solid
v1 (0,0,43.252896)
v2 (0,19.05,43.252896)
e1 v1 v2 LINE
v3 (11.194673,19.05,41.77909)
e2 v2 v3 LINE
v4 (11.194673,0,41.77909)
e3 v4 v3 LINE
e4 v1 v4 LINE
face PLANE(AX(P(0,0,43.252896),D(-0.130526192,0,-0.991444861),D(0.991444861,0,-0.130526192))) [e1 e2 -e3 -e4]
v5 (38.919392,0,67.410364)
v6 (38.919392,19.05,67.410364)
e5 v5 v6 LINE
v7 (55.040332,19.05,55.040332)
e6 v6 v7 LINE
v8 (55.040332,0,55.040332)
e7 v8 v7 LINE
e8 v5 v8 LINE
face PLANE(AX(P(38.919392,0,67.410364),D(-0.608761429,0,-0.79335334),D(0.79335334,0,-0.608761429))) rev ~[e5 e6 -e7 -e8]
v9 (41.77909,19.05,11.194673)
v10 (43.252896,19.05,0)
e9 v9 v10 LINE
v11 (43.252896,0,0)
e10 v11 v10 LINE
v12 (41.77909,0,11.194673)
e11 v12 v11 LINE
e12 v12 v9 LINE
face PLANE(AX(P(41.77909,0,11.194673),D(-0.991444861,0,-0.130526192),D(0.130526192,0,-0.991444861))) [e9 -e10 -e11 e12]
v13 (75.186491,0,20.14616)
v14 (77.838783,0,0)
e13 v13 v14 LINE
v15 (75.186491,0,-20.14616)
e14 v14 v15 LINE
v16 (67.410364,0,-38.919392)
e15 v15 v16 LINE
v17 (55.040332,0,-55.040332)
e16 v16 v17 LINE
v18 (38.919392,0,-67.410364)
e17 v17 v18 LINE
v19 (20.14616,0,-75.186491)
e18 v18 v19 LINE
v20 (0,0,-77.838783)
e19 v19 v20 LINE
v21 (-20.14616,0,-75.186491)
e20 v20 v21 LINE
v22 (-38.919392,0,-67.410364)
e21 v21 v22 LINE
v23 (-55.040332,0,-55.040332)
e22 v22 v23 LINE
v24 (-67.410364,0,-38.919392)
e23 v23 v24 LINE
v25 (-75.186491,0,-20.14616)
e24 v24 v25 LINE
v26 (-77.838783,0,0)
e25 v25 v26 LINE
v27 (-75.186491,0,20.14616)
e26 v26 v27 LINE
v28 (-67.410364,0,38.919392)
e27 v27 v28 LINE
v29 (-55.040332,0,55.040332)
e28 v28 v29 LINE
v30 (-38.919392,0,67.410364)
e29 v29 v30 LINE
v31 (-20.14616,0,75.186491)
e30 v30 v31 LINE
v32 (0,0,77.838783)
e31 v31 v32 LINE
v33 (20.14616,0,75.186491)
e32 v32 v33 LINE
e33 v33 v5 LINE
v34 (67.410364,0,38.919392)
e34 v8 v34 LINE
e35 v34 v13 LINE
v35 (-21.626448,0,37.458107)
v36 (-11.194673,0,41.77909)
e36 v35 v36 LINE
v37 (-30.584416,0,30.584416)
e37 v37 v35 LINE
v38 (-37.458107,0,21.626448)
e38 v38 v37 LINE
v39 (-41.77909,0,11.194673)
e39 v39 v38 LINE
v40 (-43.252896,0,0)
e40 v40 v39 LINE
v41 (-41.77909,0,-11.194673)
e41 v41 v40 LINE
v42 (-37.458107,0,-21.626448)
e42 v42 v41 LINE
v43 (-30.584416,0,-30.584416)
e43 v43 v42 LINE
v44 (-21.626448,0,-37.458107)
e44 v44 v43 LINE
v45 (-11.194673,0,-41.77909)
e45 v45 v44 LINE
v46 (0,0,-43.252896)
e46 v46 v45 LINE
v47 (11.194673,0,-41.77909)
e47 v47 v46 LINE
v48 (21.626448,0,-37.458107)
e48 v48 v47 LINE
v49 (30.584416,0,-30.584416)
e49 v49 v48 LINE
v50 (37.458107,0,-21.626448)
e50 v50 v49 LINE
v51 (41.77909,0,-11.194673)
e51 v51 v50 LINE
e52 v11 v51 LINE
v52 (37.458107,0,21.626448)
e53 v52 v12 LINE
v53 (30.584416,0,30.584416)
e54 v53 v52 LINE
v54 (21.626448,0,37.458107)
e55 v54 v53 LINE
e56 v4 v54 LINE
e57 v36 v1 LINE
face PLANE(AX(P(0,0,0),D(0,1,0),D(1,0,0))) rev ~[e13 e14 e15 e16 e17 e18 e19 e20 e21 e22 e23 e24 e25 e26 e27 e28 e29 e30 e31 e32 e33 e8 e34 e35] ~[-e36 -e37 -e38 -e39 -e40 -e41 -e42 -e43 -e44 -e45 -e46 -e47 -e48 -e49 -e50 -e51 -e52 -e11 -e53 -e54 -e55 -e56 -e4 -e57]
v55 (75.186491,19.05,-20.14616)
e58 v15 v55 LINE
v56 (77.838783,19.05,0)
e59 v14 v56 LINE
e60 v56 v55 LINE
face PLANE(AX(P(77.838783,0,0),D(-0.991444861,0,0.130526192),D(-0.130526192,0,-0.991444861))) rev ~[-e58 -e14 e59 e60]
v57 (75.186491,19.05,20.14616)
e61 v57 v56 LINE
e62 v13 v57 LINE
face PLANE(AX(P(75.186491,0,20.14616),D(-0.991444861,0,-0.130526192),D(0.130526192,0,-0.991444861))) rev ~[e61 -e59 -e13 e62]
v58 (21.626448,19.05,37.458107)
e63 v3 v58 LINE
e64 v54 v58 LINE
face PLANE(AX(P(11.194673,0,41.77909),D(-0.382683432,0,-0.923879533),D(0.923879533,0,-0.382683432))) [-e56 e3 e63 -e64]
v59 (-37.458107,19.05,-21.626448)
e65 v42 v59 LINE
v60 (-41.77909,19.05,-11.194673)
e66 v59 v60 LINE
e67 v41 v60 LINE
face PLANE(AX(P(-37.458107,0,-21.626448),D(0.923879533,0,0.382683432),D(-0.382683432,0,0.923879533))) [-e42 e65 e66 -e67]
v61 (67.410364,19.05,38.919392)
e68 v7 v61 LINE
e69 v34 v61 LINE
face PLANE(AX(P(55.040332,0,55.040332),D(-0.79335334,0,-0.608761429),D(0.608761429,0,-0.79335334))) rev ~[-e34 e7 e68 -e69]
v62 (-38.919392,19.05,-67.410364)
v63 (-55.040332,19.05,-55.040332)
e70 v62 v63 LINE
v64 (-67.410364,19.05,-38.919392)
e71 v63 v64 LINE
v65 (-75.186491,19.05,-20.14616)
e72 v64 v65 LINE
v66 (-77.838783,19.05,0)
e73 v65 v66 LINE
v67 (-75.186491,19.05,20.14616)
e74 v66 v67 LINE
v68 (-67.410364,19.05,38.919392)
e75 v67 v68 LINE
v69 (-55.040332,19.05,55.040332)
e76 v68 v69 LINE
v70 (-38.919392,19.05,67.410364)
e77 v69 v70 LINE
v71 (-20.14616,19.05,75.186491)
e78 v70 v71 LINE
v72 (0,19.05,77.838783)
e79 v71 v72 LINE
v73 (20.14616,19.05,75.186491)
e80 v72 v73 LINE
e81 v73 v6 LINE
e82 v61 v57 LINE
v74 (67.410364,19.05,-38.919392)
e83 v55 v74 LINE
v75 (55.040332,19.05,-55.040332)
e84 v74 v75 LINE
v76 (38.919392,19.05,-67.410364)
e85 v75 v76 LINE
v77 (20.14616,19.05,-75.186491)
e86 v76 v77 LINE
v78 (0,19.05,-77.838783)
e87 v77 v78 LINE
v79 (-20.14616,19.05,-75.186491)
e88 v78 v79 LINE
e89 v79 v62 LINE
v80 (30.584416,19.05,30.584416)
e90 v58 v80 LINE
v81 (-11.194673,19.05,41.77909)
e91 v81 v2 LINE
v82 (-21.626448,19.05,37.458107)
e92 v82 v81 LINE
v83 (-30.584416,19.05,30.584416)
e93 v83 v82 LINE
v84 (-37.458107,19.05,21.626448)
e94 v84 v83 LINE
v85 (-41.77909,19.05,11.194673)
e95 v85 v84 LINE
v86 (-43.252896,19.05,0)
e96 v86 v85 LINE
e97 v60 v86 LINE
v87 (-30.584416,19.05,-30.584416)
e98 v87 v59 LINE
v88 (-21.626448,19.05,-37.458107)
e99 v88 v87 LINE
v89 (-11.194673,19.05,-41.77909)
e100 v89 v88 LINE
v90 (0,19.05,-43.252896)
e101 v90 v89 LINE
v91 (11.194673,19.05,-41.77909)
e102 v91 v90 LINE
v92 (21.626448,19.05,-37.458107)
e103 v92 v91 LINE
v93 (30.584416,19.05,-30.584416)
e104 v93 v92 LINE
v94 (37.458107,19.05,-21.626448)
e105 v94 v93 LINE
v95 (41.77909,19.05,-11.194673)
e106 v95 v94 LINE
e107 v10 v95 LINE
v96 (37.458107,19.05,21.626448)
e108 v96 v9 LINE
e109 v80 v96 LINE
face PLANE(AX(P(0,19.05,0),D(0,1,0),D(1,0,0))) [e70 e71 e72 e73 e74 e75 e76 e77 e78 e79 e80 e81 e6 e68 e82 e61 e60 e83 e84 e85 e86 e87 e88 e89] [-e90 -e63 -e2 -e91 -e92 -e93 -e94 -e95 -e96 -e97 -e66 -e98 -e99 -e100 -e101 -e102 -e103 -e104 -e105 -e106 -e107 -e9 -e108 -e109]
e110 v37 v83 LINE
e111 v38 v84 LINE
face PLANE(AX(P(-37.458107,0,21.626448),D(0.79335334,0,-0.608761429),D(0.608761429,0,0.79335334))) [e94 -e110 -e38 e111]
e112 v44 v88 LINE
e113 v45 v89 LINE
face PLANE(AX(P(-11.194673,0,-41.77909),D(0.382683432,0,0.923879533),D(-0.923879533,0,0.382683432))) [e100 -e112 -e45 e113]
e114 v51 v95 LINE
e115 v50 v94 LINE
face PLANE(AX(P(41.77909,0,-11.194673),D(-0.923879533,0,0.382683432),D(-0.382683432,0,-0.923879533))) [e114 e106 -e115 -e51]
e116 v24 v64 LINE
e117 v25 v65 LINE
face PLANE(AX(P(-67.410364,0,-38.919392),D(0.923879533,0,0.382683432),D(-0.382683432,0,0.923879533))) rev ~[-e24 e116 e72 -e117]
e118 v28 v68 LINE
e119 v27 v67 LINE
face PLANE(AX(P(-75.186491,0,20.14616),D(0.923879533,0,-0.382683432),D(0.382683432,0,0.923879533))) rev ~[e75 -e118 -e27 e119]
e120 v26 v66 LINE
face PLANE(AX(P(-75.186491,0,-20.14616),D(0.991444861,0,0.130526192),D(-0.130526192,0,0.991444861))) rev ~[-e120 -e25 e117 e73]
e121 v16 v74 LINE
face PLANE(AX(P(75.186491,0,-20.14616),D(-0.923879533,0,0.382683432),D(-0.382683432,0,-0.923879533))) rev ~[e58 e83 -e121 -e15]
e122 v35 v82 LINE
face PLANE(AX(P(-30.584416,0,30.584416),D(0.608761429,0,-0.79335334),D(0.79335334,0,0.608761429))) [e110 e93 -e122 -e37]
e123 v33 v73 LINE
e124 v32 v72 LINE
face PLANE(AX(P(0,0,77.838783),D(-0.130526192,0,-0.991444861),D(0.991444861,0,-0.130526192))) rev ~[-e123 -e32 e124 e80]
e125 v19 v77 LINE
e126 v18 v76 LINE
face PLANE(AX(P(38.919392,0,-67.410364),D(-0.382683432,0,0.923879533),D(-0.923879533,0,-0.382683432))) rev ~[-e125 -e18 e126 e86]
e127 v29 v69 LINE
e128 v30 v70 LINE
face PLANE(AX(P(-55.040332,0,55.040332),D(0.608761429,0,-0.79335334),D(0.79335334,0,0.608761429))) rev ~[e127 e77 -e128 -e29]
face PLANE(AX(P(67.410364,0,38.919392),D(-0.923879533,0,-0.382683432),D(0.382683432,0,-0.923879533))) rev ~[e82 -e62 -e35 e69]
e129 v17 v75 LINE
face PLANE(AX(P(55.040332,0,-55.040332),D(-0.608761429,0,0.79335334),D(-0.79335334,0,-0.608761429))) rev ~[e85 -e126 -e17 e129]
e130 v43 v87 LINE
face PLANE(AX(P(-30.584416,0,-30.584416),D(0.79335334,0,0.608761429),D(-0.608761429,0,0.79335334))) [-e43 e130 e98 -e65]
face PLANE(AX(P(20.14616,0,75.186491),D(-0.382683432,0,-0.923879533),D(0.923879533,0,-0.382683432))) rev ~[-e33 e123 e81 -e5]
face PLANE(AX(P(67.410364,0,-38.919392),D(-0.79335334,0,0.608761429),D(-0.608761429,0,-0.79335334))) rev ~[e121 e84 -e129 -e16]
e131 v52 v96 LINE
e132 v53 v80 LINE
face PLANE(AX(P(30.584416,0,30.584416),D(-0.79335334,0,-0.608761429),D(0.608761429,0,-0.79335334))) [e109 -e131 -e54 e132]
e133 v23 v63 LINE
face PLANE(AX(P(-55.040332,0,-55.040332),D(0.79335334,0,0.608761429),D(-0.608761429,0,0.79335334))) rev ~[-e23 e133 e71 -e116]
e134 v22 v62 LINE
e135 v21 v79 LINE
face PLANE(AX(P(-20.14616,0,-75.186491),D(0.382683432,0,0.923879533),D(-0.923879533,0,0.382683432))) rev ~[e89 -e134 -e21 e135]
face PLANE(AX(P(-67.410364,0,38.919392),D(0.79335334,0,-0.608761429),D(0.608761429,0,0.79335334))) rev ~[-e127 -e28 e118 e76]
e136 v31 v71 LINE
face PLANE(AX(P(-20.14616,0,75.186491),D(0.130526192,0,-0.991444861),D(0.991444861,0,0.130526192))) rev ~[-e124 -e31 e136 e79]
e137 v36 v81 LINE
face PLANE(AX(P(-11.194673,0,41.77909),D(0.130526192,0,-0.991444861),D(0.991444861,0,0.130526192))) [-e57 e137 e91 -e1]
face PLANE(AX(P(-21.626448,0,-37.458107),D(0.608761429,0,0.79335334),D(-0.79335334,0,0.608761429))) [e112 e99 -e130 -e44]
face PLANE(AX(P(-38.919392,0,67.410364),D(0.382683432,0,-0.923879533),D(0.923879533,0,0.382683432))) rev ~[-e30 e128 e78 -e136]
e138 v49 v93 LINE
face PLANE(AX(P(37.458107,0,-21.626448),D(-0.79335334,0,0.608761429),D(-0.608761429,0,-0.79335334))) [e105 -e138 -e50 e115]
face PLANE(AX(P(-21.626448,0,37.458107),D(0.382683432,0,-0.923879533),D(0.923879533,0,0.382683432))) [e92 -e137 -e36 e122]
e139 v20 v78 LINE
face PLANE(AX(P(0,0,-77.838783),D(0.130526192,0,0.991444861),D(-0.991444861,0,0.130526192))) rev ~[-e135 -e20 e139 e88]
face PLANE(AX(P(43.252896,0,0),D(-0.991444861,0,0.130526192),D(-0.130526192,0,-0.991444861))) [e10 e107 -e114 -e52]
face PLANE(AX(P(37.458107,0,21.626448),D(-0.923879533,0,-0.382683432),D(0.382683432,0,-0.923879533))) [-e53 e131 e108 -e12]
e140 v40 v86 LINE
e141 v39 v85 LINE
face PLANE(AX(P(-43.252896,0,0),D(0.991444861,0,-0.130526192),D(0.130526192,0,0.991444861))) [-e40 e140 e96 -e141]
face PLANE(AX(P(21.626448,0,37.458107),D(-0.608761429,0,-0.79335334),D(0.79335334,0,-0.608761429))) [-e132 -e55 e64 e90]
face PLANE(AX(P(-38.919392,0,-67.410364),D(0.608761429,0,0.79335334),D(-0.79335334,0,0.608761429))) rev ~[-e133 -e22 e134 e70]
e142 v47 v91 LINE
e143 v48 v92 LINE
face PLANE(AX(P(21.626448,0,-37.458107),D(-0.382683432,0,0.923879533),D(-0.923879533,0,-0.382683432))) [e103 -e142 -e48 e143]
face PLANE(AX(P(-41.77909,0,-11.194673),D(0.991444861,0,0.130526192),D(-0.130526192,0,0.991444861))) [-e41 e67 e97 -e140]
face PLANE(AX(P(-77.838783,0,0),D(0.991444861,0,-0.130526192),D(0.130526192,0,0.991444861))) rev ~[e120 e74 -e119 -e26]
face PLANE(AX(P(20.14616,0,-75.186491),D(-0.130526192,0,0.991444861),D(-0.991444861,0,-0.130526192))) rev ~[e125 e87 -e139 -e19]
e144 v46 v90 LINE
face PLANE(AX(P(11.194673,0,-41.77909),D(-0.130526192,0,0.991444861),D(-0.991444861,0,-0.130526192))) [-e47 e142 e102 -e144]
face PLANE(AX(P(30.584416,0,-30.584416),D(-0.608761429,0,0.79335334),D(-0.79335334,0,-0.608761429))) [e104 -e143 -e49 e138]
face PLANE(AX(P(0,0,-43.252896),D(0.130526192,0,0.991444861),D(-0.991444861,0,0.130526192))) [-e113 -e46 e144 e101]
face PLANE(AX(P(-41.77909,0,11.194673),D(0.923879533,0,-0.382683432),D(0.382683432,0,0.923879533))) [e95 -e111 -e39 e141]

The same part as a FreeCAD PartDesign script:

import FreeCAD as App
import Part
import Sketcher
Q = App.Units.Quantity


def add_polygon(sketch, points):
    """Adds a closed chain of lines whose ends are joined by coincident constraints."""
    first, n = sketch.GeometryCount, len(points)
    for a, b in zip(points, points[1:] + points[:1]):
        sketch.addGeometry(Part.LineSegment(App.Vector(*a, 0), App.Vector(*b, 0)), False)
    for i in range(n):
        sketch.addConstraint(Sketcher.Constraint("Coincident", first + i, 2, first + (i + 1) % n, 1))

doc = App.newDocument("Part")
params = doc.addObject("Spreadsheet::Sheet", "Params")
for row, (alias, value) in enumerate([
    ("sketch1_length", "0.8 in"),
    ("pad1_length", "0.75 in"),
], start=1):
    params.set(f"A{row}", alias)
    params.set(f"B{row}", "=" + value)
    params.setAlias(f"B{row}", alias)

body = doc.addObject("PartDesign::Body", "Body")

sketch1 = body.newObject("Sketcher::SketchObject", "Sketch")
sketch1.AttachmentSupport = (doc.getObject("XZ_Plane"), [""])
sketch1.MapMode = "FlatFace"
add_polygon(sketch1, [(-78, 0), (-75, 20), (-67, 39), (-55, 55), (-39, 67), (-20, 75), (0, 78), (20, 75), (39, 67), (55, 55), (67, 39), (75, 20), (78, 0), (75, -20), (67, -39), (55, -55), (39, -67), (20, -75), (0, -78), (-20, -75), (-39, -67), (-55, -55), (-67, -39), (-75, -20)])
add_polygon(sketch1, [(-42, 11), (-43, 0), (-42, -11), (-37, -22), (-31, -31), (-22, -37), (-11, -42), (0, -43), (11, -42), (22, -37), (31, -31), (37, -22), (42, -11), (43, 0), (42, 11), (37, 22), (31, 31), (22, 37), (11, 42), (0, 43), (-11, 42), (-22, 37), (-31, 31), (-37, 22)])
sketch1.addConstraint([
    Sketcher.Constraint("Symmetric", 0, 2, 12, 2, -1, 1),
    Sketcher.Constraint("Symmetric", 1, 2, 13, 2, -1, 1),
    Sketcher.Constraint("Symmetric", 2, 2, 14, 2, -1, 1),
    Sketcher.Constraint("Symmetric", 3, 2, 15, 2, -1, 1),
    Sketcher.Constraint("Symmetric", 4, 2, 16, 2, -1, 1),
    Sketcher.Constraint("Symmetric", 5, 2, 17, 2, -1, 1),
    Sketcher.Constraint("Symmetric", 6, 2, 18, 2, -1, 1),
    Sketcher.Constraint("Symmetric", 7, 2, 19, 2, -1, 1),
    Sketcher.Constraint("Symmetric", 8, 2, 20, 2, -1, 1),
    Sketcher.Constraint("Symmetric", 9, 2, 21, 2, -1, 1),
    Sketcher.Constraint("Symmetric", 10, 2, 22, 2, -1, 1),
    Sketcher.Constraint("Symmetric", 11, 2, 23, 2, -1, 1),
    Sketcher.Constraint("Symmetric", 24, 2, 36, 2, -1, 1),
    Sketcher.Constraint("Symmetric", 25, 2, 37, 2, -1, 1),
    Sketcher.Constraint("Symmetric", 26, 2, 38, 2, -1, 1),
    Sketcher.Constraint("Symmetric", 27, 2, 39, 2, -1, 1),
    Sketcher.Constraint("Symmetric", 28, 2, 40, 2, -1, 1),
    Sketcher.Constraint("Symmetric", 29, 2, 41, 2, -1, 1),
    Sketcher.Constraint("Symmetric", 30, 2, 42, 2, -1, 1),
    Sketcher.Constraint("Symmetric", 31, 2, 43, 2, -1, 1),
    Sketcher.Constraint("Symmetric", 32, 2, 44, 2, -1, 1),
    Sketcher.Constraint("Symmetric", 33, 2, 45, 2, -1, 1),
    Sketcher.Constraint("Symmetric", 34, 2, 46, 2, -1, 1),
    Sketcher.Constraint("Symmetric", 35, 2, 47, 2, -1, 1),
    Sketcher.Constraint("Symmetric", 4, 2, 6, 2, -2),
    Sketcher.Constraint("Symmetric", 3, 2, 7, 2, -2),
    Sketcher.Constraint("Symmetric", 2, 2, 8, 2, -2),
    Sketcher.Constraint("Symmetric", 1, 2, 9, 2, -2),
    Sketcher.Constraint("Symmetric", 0, 2, 10, 2, -2),
    Sketcher.Constraint("Symmetric", 29, 2, 31, 2, -2),
    Sketcher.Constraint("Symmetric", 28, 2, 32, 2, -2),
    Sketcher.Constraint("Symmetric", 27, 2, 33, 2, -2),
    Sketcher.Constraint("Symmetric", 26, 2, 34, 2, -2),
    Sketcher.Constraint("Symmetric", 25, 2, 35, 2, -2),
    Sketcher.Constraint("PointOnObject", 5, 2, -2),
    Sketcher.Constraint("PointOnObject", 11, 2, -1),
    Sketcher.Constraint("PointOnObject", 24, 2, -1),
    Sketcher.Constraint("PointOnObject", 30, 2, -2),
    Sketcher.Constraint("Perpendicular", 0, 6),
    Sketcher.Constraint("Perpendicular", 1, 7),
    Sketcher.Constraint("Perpendicular", 2, 8),
    Sketcher.Constraint("Perpendicular", 18, 24),
    Sketcher.Constraint("Parallel", 22, 26),
    Sketcher.Constraint("Parallel", 21, 27),
    Sketcher.Constraint("Parallel", 20, 28),
    Sketcher.Constraint("Parallel", 19, 29),
    Sketcher.Constraint("Perpendicular", 24, 30),
    Sketcher.Constraint("Equal", 0, 1),
    Sketcher.Constraint("Equal", 1, 2),
    Sketcher.Constraint("Equal", 2, 3),
    Sketcher.Constraint("Equal", 3, 4),
    Sketcher.Constraint("Equal", 4, 5),
    Sketcher.Constraint("Equal", 25, 26),
    Sketcher.Constraint("Equal", 26, 27),
    Sketcher.Constraint("Equal", 27, 28),
    Sketcher.Constraint("Equal", 28, 29),
    Sketcher.Constraint("Equal", 29, 30),
    Sketcher.Constraint("Distance", 0, Q("0.8 in")),
    Sketcher.Constraint("Angle", 0, Q("82.5 deg")),
    Sketcher.Constraint("Angle", 1, Q("67.5 deg")),
    Sketcher.Constraint("Angle", 2, Q("52.5 deg")),
    Sketcher.Constraint("DistanceX", 22, 2, 25, 2, 33.407402),
])
sketch1.setExpression("Constraints[105]", "Params.sketch1_length")
pad1 = body.newObject("PartDesign::Pad", "Pad")
pad1.Profile = sketch1
pad1.setExpression("Length", "Params.pad1_length")
pad1.Reversed = True

doc.recompute()
